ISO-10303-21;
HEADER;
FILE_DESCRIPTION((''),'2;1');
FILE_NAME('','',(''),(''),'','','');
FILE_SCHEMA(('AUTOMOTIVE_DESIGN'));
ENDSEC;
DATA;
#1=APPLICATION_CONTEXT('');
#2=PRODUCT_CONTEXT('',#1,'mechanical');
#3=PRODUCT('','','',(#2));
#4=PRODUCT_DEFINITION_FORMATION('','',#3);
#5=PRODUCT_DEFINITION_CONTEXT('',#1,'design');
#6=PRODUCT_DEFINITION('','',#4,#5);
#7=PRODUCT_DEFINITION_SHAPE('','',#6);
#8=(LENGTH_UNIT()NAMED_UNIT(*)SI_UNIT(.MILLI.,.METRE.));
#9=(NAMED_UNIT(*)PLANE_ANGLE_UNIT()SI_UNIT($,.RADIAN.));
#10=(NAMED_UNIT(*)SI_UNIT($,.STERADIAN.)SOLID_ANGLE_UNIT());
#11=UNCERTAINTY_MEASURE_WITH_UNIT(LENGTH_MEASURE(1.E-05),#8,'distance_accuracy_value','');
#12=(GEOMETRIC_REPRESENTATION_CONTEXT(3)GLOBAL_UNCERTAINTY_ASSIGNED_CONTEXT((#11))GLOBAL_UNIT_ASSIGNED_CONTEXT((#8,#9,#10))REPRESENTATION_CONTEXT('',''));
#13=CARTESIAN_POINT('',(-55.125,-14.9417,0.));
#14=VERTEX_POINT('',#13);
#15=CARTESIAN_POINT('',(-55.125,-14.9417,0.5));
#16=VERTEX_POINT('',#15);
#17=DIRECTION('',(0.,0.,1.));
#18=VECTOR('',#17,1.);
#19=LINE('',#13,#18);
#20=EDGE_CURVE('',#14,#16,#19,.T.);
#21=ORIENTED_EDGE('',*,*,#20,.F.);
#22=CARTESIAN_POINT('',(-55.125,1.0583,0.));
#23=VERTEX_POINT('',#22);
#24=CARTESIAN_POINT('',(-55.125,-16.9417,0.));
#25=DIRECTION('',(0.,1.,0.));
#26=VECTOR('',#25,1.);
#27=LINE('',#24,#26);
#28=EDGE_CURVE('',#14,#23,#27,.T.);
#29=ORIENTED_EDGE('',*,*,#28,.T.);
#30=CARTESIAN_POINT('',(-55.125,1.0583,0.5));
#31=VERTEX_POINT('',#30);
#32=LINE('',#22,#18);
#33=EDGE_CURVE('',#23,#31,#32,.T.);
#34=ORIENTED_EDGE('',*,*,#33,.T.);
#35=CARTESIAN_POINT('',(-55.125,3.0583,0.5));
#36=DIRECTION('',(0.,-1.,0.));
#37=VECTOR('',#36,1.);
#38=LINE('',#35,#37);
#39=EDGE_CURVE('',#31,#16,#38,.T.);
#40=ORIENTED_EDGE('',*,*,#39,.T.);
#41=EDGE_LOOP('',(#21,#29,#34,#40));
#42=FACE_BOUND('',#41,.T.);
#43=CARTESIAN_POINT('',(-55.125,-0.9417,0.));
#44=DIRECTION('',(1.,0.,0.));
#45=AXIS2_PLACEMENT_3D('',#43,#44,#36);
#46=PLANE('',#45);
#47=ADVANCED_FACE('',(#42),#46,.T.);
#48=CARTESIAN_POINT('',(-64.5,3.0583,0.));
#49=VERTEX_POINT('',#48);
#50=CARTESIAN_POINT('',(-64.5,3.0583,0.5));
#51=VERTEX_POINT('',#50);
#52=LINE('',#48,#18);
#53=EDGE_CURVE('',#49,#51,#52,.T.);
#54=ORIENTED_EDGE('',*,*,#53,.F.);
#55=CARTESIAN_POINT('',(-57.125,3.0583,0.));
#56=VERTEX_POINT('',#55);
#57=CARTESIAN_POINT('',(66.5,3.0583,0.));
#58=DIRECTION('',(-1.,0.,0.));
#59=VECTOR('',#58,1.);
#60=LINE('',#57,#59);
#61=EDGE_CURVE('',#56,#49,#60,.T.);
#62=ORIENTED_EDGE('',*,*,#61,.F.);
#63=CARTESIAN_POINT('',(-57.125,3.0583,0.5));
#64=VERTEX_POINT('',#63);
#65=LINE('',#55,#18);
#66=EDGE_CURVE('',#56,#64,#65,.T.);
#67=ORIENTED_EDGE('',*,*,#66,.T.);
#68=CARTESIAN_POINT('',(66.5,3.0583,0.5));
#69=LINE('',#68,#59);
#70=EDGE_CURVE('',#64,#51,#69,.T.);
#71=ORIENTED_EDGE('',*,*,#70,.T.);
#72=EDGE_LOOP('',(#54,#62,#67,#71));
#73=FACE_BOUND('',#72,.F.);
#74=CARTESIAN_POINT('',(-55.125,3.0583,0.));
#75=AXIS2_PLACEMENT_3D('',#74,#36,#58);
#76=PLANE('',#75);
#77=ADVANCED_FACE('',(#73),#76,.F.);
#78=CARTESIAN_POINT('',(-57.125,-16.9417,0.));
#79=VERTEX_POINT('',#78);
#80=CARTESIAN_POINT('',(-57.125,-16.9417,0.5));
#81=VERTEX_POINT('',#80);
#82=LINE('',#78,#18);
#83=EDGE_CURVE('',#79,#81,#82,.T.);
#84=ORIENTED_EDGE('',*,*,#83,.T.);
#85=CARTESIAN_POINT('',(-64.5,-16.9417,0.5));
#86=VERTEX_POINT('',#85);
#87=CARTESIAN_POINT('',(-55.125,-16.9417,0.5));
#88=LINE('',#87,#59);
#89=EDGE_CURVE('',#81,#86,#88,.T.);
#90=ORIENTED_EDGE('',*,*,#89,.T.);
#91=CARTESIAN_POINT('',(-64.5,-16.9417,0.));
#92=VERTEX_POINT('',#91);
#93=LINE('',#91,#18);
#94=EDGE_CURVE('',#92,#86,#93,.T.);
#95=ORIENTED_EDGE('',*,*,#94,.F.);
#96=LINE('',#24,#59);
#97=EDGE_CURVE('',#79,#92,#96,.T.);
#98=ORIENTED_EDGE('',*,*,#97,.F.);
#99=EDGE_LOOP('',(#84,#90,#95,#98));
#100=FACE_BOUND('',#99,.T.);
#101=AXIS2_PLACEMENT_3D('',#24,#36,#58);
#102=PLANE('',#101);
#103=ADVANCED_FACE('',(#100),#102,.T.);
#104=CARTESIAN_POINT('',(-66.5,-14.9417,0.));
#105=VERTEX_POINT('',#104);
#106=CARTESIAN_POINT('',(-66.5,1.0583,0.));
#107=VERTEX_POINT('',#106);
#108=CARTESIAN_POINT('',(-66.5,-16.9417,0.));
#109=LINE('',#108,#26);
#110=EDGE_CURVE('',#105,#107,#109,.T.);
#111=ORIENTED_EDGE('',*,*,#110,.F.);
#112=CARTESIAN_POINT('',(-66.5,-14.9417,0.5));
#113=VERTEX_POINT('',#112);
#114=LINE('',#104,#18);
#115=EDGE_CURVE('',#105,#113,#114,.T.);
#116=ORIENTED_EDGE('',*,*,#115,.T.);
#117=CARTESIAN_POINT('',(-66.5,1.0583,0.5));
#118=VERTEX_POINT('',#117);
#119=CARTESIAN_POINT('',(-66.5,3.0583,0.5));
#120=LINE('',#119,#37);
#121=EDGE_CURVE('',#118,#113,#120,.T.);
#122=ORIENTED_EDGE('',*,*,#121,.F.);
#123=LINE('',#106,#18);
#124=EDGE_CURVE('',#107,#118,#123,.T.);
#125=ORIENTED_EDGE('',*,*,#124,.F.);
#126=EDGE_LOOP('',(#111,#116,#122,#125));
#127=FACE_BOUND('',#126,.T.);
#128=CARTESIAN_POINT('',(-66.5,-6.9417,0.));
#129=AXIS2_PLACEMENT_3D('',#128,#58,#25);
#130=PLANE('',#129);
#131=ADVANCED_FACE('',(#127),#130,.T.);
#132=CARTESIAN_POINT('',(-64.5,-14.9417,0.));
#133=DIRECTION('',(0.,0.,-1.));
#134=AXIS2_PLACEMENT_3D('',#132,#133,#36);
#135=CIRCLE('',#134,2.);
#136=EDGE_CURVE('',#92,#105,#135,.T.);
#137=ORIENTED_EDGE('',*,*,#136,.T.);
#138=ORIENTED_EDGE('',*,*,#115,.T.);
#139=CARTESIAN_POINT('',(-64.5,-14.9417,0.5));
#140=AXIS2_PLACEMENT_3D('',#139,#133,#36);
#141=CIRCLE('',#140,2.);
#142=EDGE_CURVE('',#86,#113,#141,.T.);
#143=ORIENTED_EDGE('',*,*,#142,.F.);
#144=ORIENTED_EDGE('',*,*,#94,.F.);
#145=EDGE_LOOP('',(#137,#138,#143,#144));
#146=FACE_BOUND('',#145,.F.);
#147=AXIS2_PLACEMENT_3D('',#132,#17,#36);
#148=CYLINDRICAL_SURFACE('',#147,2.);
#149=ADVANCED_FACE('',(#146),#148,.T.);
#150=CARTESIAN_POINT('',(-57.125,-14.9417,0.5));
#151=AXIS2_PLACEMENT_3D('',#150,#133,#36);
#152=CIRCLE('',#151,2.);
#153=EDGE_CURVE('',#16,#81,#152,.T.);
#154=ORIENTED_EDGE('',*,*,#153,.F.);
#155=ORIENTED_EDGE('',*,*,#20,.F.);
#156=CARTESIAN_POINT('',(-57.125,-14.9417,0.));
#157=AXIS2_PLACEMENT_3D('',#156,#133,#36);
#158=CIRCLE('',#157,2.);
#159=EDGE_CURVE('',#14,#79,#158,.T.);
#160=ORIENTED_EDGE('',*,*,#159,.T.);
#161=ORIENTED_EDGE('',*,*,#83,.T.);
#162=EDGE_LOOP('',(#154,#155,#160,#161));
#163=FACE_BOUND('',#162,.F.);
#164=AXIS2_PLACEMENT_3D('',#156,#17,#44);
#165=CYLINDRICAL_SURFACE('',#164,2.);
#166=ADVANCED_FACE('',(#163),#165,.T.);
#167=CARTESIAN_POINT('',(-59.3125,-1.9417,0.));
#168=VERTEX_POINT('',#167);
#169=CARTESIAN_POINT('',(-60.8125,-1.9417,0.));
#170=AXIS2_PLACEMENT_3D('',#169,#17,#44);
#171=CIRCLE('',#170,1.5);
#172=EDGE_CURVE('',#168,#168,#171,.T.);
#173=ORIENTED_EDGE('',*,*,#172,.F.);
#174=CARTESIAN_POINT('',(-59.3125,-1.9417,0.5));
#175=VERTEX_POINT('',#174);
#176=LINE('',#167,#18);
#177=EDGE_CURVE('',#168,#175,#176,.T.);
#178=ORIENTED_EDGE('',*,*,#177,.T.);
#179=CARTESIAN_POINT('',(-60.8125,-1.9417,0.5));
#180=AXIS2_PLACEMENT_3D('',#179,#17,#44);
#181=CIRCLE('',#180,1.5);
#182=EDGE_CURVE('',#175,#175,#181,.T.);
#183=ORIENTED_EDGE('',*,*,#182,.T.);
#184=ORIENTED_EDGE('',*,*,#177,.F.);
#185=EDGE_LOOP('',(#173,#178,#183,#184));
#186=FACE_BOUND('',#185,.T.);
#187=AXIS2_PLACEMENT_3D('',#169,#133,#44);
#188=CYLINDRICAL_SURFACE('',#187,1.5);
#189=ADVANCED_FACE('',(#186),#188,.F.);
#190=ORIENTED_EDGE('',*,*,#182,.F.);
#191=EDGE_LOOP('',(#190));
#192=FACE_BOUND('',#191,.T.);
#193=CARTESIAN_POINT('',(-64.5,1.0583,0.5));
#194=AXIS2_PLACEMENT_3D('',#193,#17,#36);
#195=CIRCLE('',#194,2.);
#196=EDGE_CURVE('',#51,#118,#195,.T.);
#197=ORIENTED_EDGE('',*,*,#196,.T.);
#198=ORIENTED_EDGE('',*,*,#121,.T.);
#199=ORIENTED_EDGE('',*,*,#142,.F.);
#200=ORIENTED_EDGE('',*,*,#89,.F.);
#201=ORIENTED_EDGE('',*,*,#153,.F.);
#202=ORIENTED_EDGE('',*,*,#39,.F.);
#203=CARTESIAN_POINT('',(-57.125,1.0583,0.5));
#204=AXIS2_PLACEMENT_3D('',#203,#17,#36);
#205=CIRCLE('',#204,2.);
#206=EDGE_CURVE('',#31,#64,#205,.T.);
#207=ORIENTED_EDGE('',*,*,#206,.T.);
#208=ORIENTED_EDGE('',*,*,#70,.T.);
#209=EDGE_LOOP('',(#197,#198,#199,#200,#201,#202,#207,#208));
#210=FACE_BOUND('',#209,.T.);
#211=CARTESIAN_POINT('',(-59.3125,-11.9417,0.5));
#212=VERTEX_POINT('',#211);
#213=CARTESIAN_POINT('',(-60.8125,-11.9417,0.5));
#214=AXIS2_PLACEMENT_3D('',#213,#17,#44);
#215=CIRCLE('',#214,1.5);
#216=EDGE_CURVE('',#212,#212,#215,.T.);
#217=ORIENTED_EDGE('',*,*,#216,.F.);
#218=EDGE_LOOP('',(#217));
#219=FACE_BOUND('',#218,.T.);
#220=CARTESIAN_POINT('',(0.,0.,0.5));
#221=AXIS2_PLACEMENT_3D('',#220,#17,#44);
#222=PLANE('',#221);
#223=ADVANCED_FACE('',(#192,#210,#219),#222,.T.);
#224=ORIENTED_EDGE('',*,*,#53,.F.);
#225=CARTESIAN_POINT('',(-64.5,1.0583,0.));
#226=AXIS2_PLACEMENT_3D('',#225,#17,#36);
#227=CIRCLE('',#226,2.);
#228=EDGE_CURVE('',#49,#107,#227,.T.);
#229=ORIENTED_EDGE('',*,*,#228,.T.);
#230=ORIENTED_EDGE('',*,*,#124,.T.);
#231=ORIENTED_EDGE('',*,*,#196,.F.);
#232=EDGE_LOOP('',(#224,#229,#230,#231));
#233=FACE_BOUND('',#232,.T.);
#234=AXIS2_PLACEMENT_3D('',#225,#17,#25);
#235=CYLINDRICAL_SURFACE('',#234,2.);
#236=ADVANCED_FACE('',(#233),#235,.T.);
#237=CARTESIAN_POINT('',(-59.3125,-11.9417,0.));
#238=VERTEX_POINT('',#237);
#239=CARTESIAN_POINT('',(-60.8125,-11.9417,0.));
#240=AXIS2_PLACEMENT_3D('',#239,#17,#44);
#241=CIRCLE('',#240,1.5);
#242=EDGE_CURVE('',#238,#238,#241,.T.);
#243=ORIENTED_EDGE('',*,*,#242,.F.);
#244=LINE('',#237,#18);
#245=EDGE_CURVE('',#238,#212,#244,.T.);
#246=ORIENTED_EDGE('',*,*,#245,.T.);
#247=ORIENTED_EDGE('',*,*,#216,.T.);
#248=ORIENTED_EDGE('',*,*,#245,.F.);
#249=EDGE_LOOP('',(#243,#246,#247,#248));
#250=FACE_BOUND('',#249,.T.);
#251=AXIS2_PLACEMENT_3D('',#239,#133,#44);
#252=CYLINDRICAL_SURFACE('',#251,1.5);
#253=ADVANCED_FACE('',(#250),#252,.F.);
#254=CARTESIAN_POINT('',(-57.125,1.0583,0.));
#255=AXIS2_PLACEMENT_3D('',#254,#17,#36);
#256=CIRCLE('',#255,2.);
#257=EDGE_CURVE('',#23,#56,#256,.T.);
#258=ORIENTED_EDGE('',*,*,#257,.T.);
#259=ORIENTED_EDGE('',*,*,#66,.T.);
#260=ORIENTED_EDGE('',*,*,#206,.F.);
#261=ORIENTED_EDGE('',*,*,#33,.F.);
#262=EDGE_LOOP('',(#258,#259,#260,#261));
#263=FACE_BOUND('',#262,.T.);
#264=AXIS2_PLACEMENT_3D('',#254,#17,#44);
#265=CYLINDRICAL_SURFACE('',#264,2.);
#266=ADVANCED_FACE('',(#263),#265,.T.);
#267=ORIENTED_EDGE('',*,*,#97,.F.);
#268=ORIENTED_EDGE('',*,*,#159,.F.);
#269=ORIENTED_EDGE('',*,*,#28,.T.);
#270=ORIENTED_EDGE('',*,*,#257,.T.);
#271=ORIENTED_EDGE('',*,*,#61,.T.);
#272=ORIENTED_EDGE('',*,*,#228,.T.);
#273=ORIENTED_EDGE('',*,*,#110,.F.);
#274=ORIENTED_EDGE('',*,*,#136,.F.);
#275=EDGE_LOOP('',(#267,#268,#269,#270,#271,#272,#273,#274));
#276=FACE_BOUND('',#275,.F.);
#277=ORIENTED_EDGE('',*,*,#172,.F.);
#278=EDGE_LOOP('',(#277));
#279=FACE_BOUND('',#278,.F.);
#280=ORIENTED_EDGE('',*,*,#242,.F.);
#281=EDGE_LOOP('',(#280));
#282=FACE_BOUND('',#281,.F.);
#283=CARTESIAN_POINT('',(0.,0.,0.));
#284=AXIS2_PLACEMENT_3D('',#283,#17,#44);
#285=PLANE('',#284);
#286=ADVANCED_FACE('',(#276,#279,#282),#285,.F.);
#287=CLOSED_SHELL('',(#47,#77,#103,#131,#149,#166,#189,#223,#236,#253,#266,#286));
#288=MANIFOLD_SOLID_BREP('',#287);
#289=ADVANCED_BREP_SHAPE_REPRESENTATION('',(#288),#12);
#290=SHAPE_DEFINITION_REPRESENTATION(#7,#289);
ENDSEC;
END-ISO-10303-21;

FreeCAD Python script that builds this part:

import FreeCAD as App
import Part
import Sketcher
from FreeCAD import Vector


def edges_at(feature, points):
    """Names of the edges that pass closest to the given points."""
    edges = feature.Shape.Edges
    near = lambda p: min(range(len(edges)), key=lambda i: edges[i].distToShape(Part.Vertex(*p))[0])
    return sorted({f"Edge{near(p) + 1}" for p in points})

doc = App.newDocument("Part")
body = doc.addObject("PartDesign::Body", "Body")

# Sketch on XY plane
sketch1 = doc.addObject("Sketcher::SketchObject", "Sketch")
body.addObject(sketch1)
sketch1.AttachmentSupport = (doc.XY_Plane, [""])
sketch1.MapMode = "FlatFace"
sketch1.addGeometry([
    Part.LineSegment(Vector(-55.1, 3.1, 0), Vector(-66.5, 3.1, 0)),  # 0
    Part.LineSegment(Vector(-66.5, 3.1, 0), Vector(-66.5, -16.9, 0)),  # 1
    Part.LineSegment(Vector(-66.5, -16.9, 0), Vector(-55.1, -16.9, 0)),  # 2
    Part.LineSegment(Vector(-55.1, -16.9, 0), Vector(-55.1, 3.1, 0)),  # 3
    Part.Circle(Vector(-60.8, -1.9, 0), Vector(0, 0, 1), 1.5),  # 4
    Part.Circle(Vector(-60.8, -11.9, 0), Vector(0, 0, 1), 1.5),  # 5
], False)
sketch1.addConstraint([
    Sketcher.Constraint("Coincident", 0, 2, 1, 1),
    Sketcher.Constraint("Coincident", 1, 2, 2, 1),
    Sketcher.Constraint("Coincident", 2, 2, 3, 1),
    Sketcher.Constraint("Coincident", 3, 2, 0, 1),
    Sketcher.Constraint("Horizontal", 0),
    Sketcher.Constraint("Vertical", 1),
    Sketcher.Constraint("Horizontal", 2),
    Sketcher.Constraint("Vertical", 3),
    Sketcher.Constraint("Equal", 4, 5),
    Sketcher.Constraint("Vertical", 4, 3, 5, 3),
    Sketcher.Constraint("Diameter", 4, 3.0),
    Sketcher.Constraint("DistanceY", 1, 2, 1, 1, 20.0),
    Sketcher.Constraint("DistanceY", 4, 3, 0, 2, 5.0),
    Sketcher.Constraint("DistanceY", 1, 2, 5, 3, 5.0),
    Sketcher.Constraint("DistanceX", 0, 2, -1, 1, 66.5),
    Sketcher.Constraint("DistanceX", 0, 2, 0, 1, 11.375),
    Sketcher.Constraint("DistanceX", 4, 3, -1, 1, 60.8125),
    Sketcher.Constraint("DistanceY", 4, 3, -1, 1, 1.9417),
])
pad1 = doc.addObject("PartDesign::Pad", "Pad")
body.addObject(pad1)
pad1.Profile = sketch1
pad1.Length = 0.5
doc.recompute()

fillet = doc.addObject("PartDesign::Fillet", "Fillet")
body.addObject(fillet)
fillet.Base = (pad1, edges_at(pad1, [
    (-66.5, 3.058, 0.25),
    (-55.125, 3.058, 0.25),
    (-55.125, -16.942, 0.25),
    (-66.5, -16.942, 0.25),
]))
fillet.Radius = 2

doc.recompute()
